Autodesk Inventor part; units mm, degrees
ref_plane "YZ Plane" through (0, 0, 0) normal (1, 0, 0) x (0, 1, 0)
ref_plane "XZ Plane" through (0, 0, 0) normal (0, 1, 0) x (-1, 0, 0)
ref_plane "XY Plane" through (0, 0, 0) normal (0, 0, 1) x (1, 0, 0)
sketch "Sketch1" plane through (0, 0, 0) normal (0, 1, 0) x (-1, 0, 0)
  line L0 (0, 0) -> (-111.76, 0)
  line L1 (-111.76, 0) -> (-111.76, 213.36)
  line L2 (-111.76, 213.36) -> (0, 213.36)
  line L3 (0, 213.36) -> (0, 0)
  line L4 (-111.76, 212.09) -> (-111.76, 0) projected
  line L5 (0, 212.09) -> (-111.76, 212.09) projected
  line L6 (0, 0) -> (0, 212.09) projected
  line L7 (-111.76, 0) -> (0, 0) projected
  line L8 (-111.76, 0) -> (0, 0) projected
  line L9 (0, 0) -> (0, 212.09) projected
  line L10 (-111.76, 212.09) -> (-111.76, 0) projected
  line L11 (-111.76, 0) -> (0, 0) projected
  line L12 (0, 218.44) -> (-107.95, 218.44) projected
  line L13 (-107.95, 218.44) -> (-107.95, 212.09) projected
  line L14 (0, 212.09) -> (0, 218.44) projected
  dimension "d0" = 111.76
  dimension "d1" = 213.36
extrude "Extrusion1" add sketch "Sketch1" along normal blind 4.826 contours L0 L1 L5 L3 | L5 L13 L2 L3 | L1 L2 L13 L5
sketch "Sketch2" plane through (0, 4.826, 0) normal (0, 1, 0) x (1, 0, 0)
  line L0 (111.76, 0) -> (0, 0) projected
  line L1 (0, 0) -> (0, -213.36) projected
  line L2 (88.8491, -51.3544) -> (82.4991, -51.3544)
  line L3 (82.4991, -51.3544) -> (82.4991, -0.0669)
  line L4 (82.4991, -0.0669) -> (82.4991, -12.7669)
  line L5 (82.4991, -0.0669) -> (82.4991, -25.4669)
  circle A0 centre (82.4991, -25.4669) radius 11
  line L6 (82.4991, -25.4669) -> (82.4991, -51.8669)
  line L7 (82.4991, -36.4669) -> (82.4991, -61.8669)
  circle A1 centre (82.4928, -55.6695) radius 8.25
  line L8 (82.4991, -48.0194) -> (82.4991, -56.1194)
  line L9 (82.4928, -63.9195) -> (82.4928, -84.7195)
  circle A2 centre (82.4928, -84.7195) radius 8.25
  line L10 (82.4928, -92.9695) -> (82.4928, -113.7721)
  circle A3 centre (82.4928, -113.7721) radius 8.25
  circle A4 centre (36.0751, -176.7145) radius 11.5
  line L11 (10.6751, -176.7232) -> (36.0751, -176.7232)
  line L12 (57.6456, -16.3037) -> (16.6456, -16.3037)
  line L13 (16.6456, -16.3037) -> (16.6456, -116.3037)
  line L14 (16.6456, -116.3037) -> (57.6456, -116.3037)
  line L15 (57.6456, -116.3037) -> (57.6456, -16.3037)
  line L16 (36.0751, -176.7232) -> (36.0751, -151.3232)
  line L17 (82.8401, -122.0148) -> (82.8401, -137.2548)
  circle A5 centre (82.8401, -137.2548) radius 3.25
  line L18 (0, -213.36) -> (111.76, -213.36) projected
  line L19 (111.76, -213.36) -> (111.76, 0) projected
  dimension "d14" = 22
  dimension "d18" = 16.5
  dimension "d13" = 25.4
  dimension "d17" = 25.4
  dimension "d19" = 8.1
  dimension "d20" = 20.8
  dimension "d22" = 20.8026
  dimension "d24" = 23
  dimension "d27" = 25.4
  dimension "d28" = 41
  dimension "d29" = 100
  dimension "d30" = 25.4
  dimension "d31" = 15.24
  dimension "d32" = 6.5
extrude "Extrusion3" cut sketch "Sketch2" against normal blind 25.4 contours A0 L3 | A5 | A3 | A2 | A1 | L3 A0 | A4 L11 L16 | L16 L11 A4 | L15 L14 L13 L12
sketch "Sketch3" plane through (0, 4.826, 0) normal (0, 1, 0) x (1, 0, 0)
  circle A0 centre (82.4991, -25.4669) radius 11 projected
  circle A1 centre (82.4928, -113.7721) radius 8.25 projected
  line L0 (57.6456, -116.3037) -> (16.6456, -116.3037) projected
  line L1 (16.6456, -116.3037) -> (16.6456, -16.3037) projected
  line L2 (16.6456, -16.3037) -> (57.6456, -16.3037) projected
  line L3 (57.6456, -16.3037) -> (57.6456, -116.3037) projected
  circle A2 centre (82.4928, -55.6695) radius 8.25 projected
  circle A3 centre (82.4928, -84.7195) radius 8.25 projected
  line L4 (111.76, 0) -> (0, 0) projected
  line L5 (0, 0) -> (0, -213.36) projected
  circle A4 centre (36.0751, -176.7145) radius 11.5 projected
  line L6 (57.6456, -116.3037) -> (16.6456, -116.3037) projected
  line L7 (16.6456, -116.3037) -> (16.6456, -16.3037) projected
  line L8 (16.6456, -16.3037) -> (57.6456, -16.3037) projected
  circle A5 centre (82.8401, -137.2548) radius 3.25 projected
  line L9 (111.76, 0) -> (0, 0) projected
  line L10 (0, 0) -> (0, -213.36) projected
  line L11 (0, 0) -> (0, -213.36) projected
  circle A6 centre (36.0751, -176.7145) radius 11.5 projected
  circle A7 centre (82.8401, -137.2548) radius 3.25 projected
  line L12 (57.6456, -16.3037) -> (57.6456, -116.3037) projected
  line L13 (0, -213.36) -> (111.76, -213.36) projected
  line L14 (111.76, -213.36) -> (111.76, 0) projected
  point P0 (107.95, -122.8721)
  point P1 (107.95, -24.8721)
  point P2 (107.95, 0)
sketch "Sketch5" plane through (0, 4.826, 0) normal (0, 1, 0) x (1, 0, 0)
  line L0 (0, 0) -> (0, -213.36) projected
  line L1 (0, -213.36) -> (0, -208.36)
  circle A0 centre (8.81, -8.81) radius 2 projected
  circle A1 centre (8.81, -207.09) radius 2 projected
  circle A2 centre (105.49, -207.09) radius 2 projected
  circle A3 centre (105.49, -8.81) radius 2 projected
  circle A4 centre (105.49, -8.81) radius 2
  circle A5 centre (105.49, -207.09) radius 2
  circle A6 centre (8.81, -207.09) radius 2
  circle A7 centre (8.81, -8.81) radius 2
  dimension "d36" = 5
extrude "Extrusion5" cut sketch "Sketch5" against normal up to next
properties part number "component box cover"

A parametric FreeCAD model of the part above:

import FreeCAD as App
import Part
import Sketcher
from FreeCAD import Vector
Q = App.Units.Quantity


def add_polygon(sketch, points):
    """Adds a closed chain of lines whose ends are joined by coincident constraints."""
    first, n = sketch.GeometryCount, len(points)
    for a, b in zip(points, points[1:] + points[:1]):
        sketch.addGeometry(Part.LineSegment(App.Vector(*a, 0), App.Vector(*b, 0)), False)
    for i in range(n):
        sketch.addConstraint(Sketcher.Constraint("Coincident", first + i, 2, first + (i + 1) % n, 1))

doc = App.newDocument("Part")
body = doc.addObject("PartDesign::Body", "Body")

sketch1 = body.newObject("Sketcher::SketchObject", "Sketch")
sketch1.AttachmentSupport = (doc.getObject("XZ_Plane"), [""])
sketch1.MapMode = "FlatFace"
add_polygon(sketch1, [(111.76, 0), (0, 0), (0, 213.36), (111.76, 213.36)])
sketch1.addConstraint(Sketcher.Constraint("Horizontal", 0))
sketch1.addConstraint(Sketcher.Constraint("Vertical", 1))
sketch1.addConstraint(Sketcher.Constraint("Horizontal", 2))
sketch1.addConstraint(Sketcher.Constraint("Vertical", 3))
sketch1.addConstraint(Sketcher.Constraint("Coincident", 0, 2, -1, 1))
sketch1.addConstraint(Sketcher.Constraint("DistanceX", 0, 2, 0, 1, Q("4.4 in")))
sketch1.addConstraint(Sketcher.Constraint("DistanceY", 1, 1, 1, 2, Q("8.4 in")))
pad1 = body.newObject("PartDesign::Pad", "Pad")
pad1.Profile = sketch1
pad1.Length = Q("0.19 in")
pad1.Reversed = True

sketch2 = body.newObject("Sketcher::SketchObject", "Sketch001")
sketch2.AttachmentSupport = (doc.getObject("XZ_Plane"), [""])
sketch2.MapMode = "FlatFace"
sketch2.AttachmentOffset = App.Placement(Vector(0, 0, -0.19 * 25.4), App.Rotation())
sketch2.addGeometry(Part.Circle(Vector(82.4991, 25.4669, 0), Vector(0, 0, 1), 11), False)
sketch2.addGeometry(Part.Circle(Vector(82.8401, 137.2548, 0), Vector(0, 0, 1), 3.25), False)
sketch2.addGeometry(Part.Circle(Vector(82.4928, 113.7721, 0), Vector(0, 0, 1), 8.25), False)
sketch2.addGeometry(Part.Circle(Vector(82.4928, 84.7195, 0), Vector(0, 0, 1), 8.25), False)
sketch2.addGeometry(Part.Circle(Vector(82.4928, 55.6695, 0), Vector(0, 0, 1), 8.25), False)
sketch2.addGeometry(Part.Circle(Vector(36.0751, 176.7145, 0), Vector(0, 0, 1), 11.5), False)
add_polygon(sketch2, [(57.6456, 116.3037), (57.6456, 16.3037), (16.6456, 16.3037), (16.6456, 116.3037)])
sketch2.addConstraint(Sketcher.Constraint("Vertical", 6))
sketch2.addConstraint(Sketcher.Constraint("Horizontal", 7))
sketch2.addConstraint(Sketcher.Constraint("Vertical", 8))
sketch2.addConstraint(Sketcher.Constraint("Horizontal", 9))
sketch2.addConstraint(Sketcher.Constraint("Equal", 2, 3))
sketch2.addConstraint(Sketcher.Constraint("Equal", 3, 4))
sketch2.addConstraint(Sketcher.Constraint("Vertical", 2, 3, 3, 3))
sketch2.addConstraint(Sketcher.Constraint("Vertical", 3, 3, 4, 3))
sketch2.addConstraint(Sketcher.Constraint("Diameter", 1, Q("0.2559 in")))
sketch2.addConstraint(Sketcher.Constraint("Diameter", 2, Q("0.6496 in")))
sketch2.addConstraint(Sketcher.Constraint("Diameter", 5, Q("0.9055 in")))
sketch2.addConstraint(Sketcher.Constraint("Diameter", 0, 22.0))
sketch2.addConstraint(Sketcher.Constraint("DistanceY", 6, 2, 6, 1, Q("3.937 in")))
sketch2.addConstraint(Sketcher.Constraint("DistanceX", 7, 2, 7, 1, 41.0))
sketch2.addConstraint(Sketcher.Constraint("DistanceX", -1, 1, 0, 3, Q("3.248 in")))
sketch2.addConstraint(Sketcher.Constraint("DistanceX", -1, 1, 6, 2, Q("2.2695 in")))
sketch2.addConstraint(Sketcher.Constraint("DistanceY", 0, 3, 1, 3, Q("4.4011 in")))
sketch2.addConstraint(Sketcher.Constraint("DistanceY", 3, 3, 2, 3, Q("1.1438 in")))
sketch2.addConstraint(Sketcher.Constraint("DistanceY", 4, 3, 3, 3, Q("1.1437 in")))
sketch2.addConstraint(Sketcher.Constraint("DistanceX", 6, 2, 1, 3, Q("0.9919 in")))
sketch2.addConstraint(Sketcher.Constraint("DistanceX", 7, 2, 4, 3, Q("2.5924 in")))
sketch2.addConstraint(Sketcher.Constraint("DistanceY", -1, 1, 0, 3, 25.467))
sketch2.addConstraint(Sketcher.Constraint("DistanceY", -1, 1, 2, 3, 113.772))
sketch2.addConstraint(Sketcher.Constraint("DistanceX", -1, 1, 5, 3, 36.075))
sketch2.addConstraint(Sketcher.Constraint("DistanceY", -1, 1, 5, 3, 176.7145))
sketch2.addConstraint(Sketcher.Constraint("DistanceY", -1, 1, 6, 2, 16.3037))
pocket1 = body.newObject("PartDesign::Pocket", "Pocket")
pocket1.Profile = sketch2
pocket1.Length = Q("1 in")
pocket1.Reversed = True

sketch3 = body.newObject("Sketcher::SketchObject", "Sketch002")
sketch3.AttachmentSupport = (doc.getObject("XZ_Plane"), [""])
sketch3.MapMode = "FlatFace"
sketch3.AttachmentOffset = App.Placement(Vector(0, 0, -0.19 * 25.4), App.Rotation())
sketch3.addGeometry(Part.Circle(Vector(8.81, 8.81, 0), Vector(0, 0, 1), 2), False)
sketch3.addGeometry(Part.Circle(Vector(8.81, 207.09, 0), Vector(0, 0, 1), 2), False)
sketch3.addGeometry(Part.Circle(Vector(105.49, 207.09, 0), Vector(0, 0, 1), 2), False)
sketch3.addGeometry(Part.Circle(Vector(105.49, 8.81, 0), Vector(0, 0, 1), 2), False)
sketch3.addConstraint(Sketcher.Constraint("Equal", 0, 1))
sketch3.addConstraint(Sketcher.Constraint("Equal", 1, 2))
sketch3.addConstraint(Sketcher.Constraint("Equal", 2, 3))
sketch3.addConstraint(Sketcher.Constraint("Horizontal", 1, 3, 2, 3))
sketch3.addConstraint(Sketcher.Constraint("Horizontal", 0, 3, 3, 3))
sketch3.addConstraint(Sketcher.Constraint("Vertical", 0, 3, 1, 3))
sketch3.addConstraint(Sketcher.Constraint("Vertical", 2, 3, 3, 3))
sketch3.addConstraint(Sketcher.Constraint("Diameter", 0, 4.0))
sketch3.addConstraint(Sketcher.Constraint("DistanceY", 0, 3, 1, 3, Q("7.8063 in")))
sketch3.addConstraint(Sketcher.Constraint("DistanceX", 1, 3, 2, 3, Q("3.8063 in")))
sketch3.addConstraint(Sketcher.Constraint("DistanceX", -1, 1, 0, 3, 8.81))
sketch3.addConstraint(Sketcher.Constraint("DistanceY", -1, 1, 0, 3, 8.81))
pocket2 = body.newObject("PartDesign::Pocket", "Pocket001")
pocket2.Profile = sketch3
pocket2.Length = Q("0.19 in")
pocket2.Reversed = True

doc.recompute()
